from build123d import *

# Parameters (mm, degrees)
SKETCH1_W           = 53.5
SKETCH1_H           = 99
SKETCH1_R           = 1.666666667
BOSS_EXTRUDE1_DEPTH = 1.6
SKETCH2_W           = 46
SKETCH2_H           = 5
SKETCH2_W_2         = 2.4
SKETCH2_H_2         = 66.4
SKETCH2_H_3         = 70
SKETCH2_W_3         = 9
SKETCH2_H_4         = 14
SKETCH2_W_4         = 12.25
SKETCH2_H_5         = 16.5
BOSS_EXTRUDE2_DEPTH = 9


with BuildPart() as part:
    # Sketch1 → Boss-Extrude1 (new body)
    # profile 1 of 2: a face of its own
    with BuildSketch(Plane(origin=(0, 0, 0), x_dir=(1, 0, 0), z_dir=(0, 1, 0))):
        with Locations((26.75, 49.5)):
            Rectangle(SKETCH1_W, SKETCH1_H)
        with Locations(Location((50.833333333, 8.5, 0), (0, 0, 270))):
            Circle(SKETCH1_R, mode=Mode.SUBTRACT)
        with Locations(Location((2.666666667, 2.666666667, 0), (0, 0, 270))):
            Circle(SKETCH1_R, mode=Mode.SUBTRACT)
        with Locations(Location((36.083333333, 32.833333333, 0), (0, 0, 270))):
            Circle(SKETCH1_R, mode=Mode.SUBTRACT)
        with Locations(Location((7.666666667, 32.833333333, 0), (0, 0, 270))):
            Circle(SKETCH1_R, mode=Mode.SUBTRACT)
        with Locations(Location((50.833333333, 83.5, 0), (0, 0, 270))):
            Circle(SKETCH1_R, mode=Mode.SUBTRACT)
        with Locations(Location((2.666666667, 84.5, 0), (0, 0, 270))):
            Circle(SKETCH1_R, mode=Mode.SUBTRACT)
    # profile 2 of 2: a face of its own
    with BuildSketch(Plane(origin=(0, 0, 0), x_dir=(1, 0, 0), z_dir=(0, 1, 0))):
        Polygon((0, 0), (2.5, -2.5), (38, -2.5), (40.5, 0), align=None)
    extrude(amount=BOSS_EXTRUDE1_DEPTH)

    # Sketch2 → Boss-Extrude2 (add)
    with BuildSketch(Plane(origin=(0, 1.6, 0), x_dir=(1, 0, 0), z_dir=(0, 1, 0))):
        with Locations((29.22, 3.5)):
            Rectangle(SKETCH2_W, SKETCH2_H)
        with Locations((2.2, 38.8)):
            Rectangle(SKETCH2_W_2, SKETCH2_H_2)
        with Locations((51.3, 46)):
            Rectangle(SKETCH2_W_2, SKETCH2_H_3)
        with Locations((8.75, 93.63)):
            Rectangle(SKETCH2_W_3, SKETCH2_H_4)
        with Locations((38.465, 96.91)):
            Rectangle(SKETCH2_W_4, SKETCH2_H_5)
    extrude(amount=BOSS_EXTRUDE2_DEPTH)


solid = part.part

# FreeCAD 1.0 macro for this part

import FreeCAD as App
import Part
import Sketcher
from FreeCAD import Vector

doc = App.newDocument("Part")
params = doc.addObject("Spreadsheet::Sheet", "Params")
for row, (alias, value) in enumerate([
    ("sketch1_width", "13 mm"),
    ("sketch1_height", "99 mm"),
    ("sketch1_width2", "35.5 mm"),
    ("sketch1_width3", "53.5 mm"),
    ("pad1_length", "1.6 mm"),
    ("sketch2_width", "46 mm"),
    ("sketch2_width2", "9 mm"),
    ("sketch2_height", "5 mm"),
    ("sketch2_height2", "70 mm"),
    ("sketch2_height3", "14 mm"),
    ("pad2_length", "9 mm"),
], start=1):
    params.set(f"A{row}", alias)
    params.set(f"B{row}", "=" + value)
    params.setAlias(f"B{row}", alias)

body = doc.addObject("PartDesign::Body", "Body")

# Sketch on XZ plane
sketch1 = doc.addObject("Sketcher::SketchObject", "Sketch")
body.addObject(sketch1)
sketch1.AttachmentSupport = (doc.XZ_Plane, [""])
sketch1.MapMode = "FlatFace"
sketch1.addGeometry([
    Part.LineSegment(Vector(0, -99, 0), Vector(0, 0, 0)),  # 0
    Part.LineSegment(Vector(0, 0, 0), Vector(2.5, 2.5, 0)),  # 1
    Part.LineSegment(Vector(2.5, 2.5, 0), Vector(38, 2.5, 0)),  # 2
    Part.LineSegment(Vector(38, 2.5, 0), Vector(40.5, 0, 0)),  # 3
    Part.LineSegment(Vector(40.5, 0, 0), Vector(53.5, 0, 0)),  # 4
    Part.LineSegment(Vector(53.5, 0, 0), Vector(53.5, -99, 0)),  # 5
    Part.LineSegment(Vector(53.5, -99, 0), Vector(0, -99, 0)),  # 6
    Part.Circle(Vector(2.7, -2.7, 0), Vector(0, 0, 1), 1.7),  # 7
    Part.Circle(Vector(7.7, -32.8, 0), Vector(0, 0, 1), 1.7),  # 8
    Part.Circle(Vector(50.8, -8.5, 0), Vector(0, 0, 1), 1.7),  # 9
    Part.Circle(Vector(36.1, -32.8, 0), Vector(0, 0, 1), 1.7),  # 10
    Part.Circle(Vector(2.7, -84.5, 0), Vector(0, 0, 1), 1.7),  # 11
    Part.Circle(Vector(50.8, -83.5, 0), Vector(0, 0, 1), 1.7),  # 12
], False)
sketch1.addConstraint([
    Sketcher.Constraint("Coincident", 0, 2, 1, 1),
    Sketcher.Constraint("Coincident", 1, 2, 2, 1),
    Sketcher.Constraint("Coincident", 2, 2, 3, 1),
    Sketcher.Constraint("Coincident", 3, 2, 4, 1),
    Sketcher.Constraint("Coincident", 4, 2, 5, 1),
    Sketcher.Constraint("Coincident", 5, 2, 6, 1),
    Sketcher.Constraint("Coincident", 6, 2, 0, 1),
    Sketcher.Constraint("Vertical", 0),
    Sketcher.Constraint("Horizontal", 2),
    Sketcher.Constraint("Horizontal", 4),
    Sketcher.Constraint("Vertical", 5),
    Sketcher.Constraint("Horizontal", 6),
    Sketcher.Constraint("Coincident", 0, 2, -1, 1),
    Sketcher.Constraint("Equal", 7, 8),
    Sketcher.Constraint("Equal", 8, 9),
    Sketcher.Constraint("Equal", 9, 10),
    Sketcher.Constraint("Equal", 10, 11),
    Sketcher.Constraint("Equal", 11, 12),
    Sketcher.Constraint("PointOnObject", 3, 2, -1),
    Sketcher.Constraint("Perpendicular", 1, 3),
    Sketcher.Constraint("Horizontal", 8, 3, 10, 3),
    Sketcher.Constraint("Vertical", 7, 3, 11, 3),
    Sketcher.Constraint("Vertical", 9, 3, 12, 3),
    Sketcher.Constraint("Equal", 1, 3),
    Sketcher.Constraint("DistanceX", 4, 1, 4, 2, 13.0),
    Sketcher.Constraint("DistanceY", 0, 1, 0, 2, 99.0),
    Sketcher.Constraint("DistanceX", 2, 1, 2, 2, 35.5),
    Sketcher.Constraint("DistanceX", 6, 2, 6, 1, 53.5),
    Sketcher.Constraint("DistanceX", 7, 3, 8, 3, 5.0),
    Sketcher.Constraint("DistanceY", 11, 3, 9, 3, 76.0),
    Sketcher.Constraint("DistanceY", 11, 3, 12, 3, 1.0),
    Sketcher.Constraint("DistanceY", 9, 3, 1, 2, 11.0),
    Sketcher.Constraint("DistanceX", 10, 3, 9, 3, 14.75),
    Sketcher.Constraint("Diameter", 7, 3.333333),
    Sketcher.Constraint("DistanceX", -1, 1, 7, 3, 2.666667),
    Sketcher.Constraint("DistanceY", 7, 3, -1, 1, 2.666667),
    Sketcher.Constraint("DistanceY", 8, 3, -1, 1, 32.833333),
    Sketcher.Constraint("DistanceX", -1, 1, 9, 3, 50.833333),
])
sketch1.setExpression("Constraints[24]", "Params.sketch1_width")
sketch1.setExpression("Constraints[25]", "Params.sketch1_height")
sketch1.setExpression("Constraints[26]", "Params.sketch1_width2")
sketch1.setExpression("Constraints[27]", "Params.sketch1_width3")
pad1 = doc.addObject("PartDesign::Pad", "Pad")
body.addObject(pad1)
pad1.Profile = sketch1
pad1.setExpression("Length", "Params.pad1_length")
pad1.Reversed = True

# Sketch on XZ plane
sketch2 = doc.addObject("Sketcher::SketchObject", "Sketch001")
body.addObject(sketch2)
sketch2.AttachmentSupport = (doc.XZ_Plane, [""])
sketch2.MapMode = "FlatFace"
sketch2.AttachmentOffset = App.Placement(Vector(0, 0, -1.6), App.Rotation())
sketch2.addGeometry([
    Part.LineSegment(Vector(6.2, -6, 0), Vector(6.2, -1, 0)),  # 0
    Part.LineSegment(Vector(6.2, -1, 0), Vector(52.2, -1, 0)),  # 1
    Part.LineSegment(Vector(52.2, -1, 0), Vector(52.2, -6, 0)),  # 2
    Part.LineSegment(Vector(52.2, -6, 0), Vector(6.2, -6, 0)),  # 3
    Part.LineSegment(Vector(1, -72, 0), Vector(1, -5.6, 0)),  # 4
    Part.LineSegment(Vector(1, -5.6, 0), Vector(3.4, -5.6, 0)),  # 5
    Part.LineSegment(Vector(3.4, -5.6, 0), Vector(3.4, -72, 0)),  # 6
    Part.LineSegment(Vector(3.4, -72, 0), Vector(1, -72, 0)),  # 7
    Part.LineSegment(Vector(50.1, -81, 0), Vector(50.1, -11, 0)),  # 8
    Part.LineSegment(Vector(50.1, -11, 0), Vector(52.5, -11, 0)),  # 9
    Part.LineSegment(Vector(52.5, -11, 0), Vector(52.5, -81, 0)),  # 10
    Part.LineSegment(Vector(52.5, -81, 0), Vector(50.1, -81, 0)),  # 11
    Part.LineSegment(Vector(4.2, -100.6, 0), Vector(4.2, -86.6, 0)),  # 12
    Part.LineSegment(Vector(4.2, -86.6, 0), Vector(13.2, -86.6, 0)),  # 13
    Part.LineSegment(Vector(13.2, -86.6, 0), Vector(13.2, -100.6, 0)),  # 14
    Part.LineSegment(Vector(13.2, -100.6, 0), Vector(4.2, -100.6, 0)),  # 15
    Part.LineSegment(Vector(32.3, -105.2, 0), Vector(32.3, -88.7, 0)),  # 16
    Part.LineSegment(Vector(32.3, -88.7, 0), Vector(44.6, -88.7, 0)),  # 17
    Part.LineSegment(Vector(44.6, -88.7, 0), Vector(44.6, -105.2, 0)),  # 18
    Part.LineSegment(Vector(44.6, -105.2, 0), Vector(32.3, -105.2, 0)),  # 19
], False)
sketch2.addConstraint([
    Sketcher.Constraint("Coincident", 0, 2, 1, 1),
    Sketcher.Constraint("Coincident", 1, 2, 2, 1),
    Sketcher.Constraint("Coincident", 2, 2, 3, 1),
    Sketcher.Constraint("Coincident", 3, 2, 0, 1),
    Sketcher.Constraint("Coincident", 4, 2, 5, 1),
    Sketcher.Constraint("Coincident", 5, 2, 6, 1),
    Sketcher.Constraint("Coincident", 6, 2, 7, 1),
    Sketcher.Constraint("Coincident", 7, 2, 4, 1),
    Sketcher.Constraint("Coincident", 8, 2, 9, 1),
    Sketcher.Constraint("Coincident", 9, 2, 10, 1),
    Sketcher.Constraint("Coincident", 10, 2, 11, 1),
    Sketcher.Constraint("Coincident", 11, 2, 8, 1),
    Sketcher.Constraint("Coincident", 12, 2, 13, 1),
    Sketcher.Constraint("Coincident", 13, 2, 14, 1),
    Sketcher.Constraint("Coincident", 14, 2, 15, 1),
    Sketcher.Constraint("Coincident", 15, 2, 12, 1),
    Sketcher.Constraint("Coincident", 16, 2, 17, 1),
    Sketcher.Constraint("Coincident", 17, 2, 18, 1),
    Sketcher.Constraint("Coincident", 18, 2, 19, 1),
    Sketcher.Constraint("Coincident", 19, 2, 16, 1),
    Sketcher.Constraint("Vertical", 0),
    Sketcher.Constraint("Horizontal", 1),
    Sketcher.Constraint("Vertical", 2),
    Sketcher.Constraint("Horizontal", 3),
    Sketcher.Constraint("Vertical", 4),
    Sketcher.Constraint("Horizontal", 5),
    Sketcher.Constraint("Vertical", 6),
    Sketcher.Constraint("Horizontal", 7),
    Sketcher.Constraint("Vertical", 8),
    Sketcher.Constraint("Horizontal", 9),
    Sketcher.Constraint("Vertical", 10),
    Sketcher.Constraint("Horizontal", 11),
    Sketcher.Constraint("Vertical", 12),
    Sketcher.Constraint("Horizontal", 13),
    Sketcher.Constraint("Vertical", 14),
    Sketcher.Constraint("Horizontal", 15),
    Sketcher.Constraint("Vertical", 16),
    Sketcher.Constraint("Horizontal", 17),
    Sketcher.Constraint("Vertical", 18),
    Sketcher.Constraint("Horizontal", 19),
    Sketcher.Constraint("Equal", 7, 9),
    Sketcher.Constraint("DistanceX", 1, 1, 1, 2, 46.0),
    Sketcher.Constraint("DistanceX", 13, 1, 13, 2, 9.0),
    Sketcher.Constraint("DistanceY", 0, 1, 0, 2, 5.0),
    Sketcher.Constraint("DistanceY", 8, 1, 8, 2, 70.0),
    Sketcher.Constraint("DistanceY", 12, 1, 12, 2, 14.0),
    Sketcher.Constraint("DistanceX", 5, 1, 5, 2, 2.4),
    Sketcher.Constraint("DistanceY", 4, 1, 4, 2, 66.4),
    Sketcher.Constraint("DistanceY", 16, 1, 16, 2, 16.5),
    Sketcher.Constraint("DistanceY", 0, 2, -1, 1, 1.0),
    Sketcher.Constraint("DistanceX", -1, 1, 4, 2, 1.0),
    Sketcher.Constraint("DistanceY", 6, 2, -1, 1, 72.0),
    Sketcher.Constraint("DistanceY", 8, 2, -1, 1, 11.0),
    Sketcher.Constraint("DistanceX", 17, 1, 17, 2, 12.25),
    Sketcher.Constraint("DistanceX", -1, 1, 8, 2, 50.1),
    Sketcher.Constraint("DistanceX", -1, 1, 0, 2, 6.22),
    Sketcher.Constraint("DistanceX", -1, 1, 12, 2, 4.25),
    Sketcher.Constraint("DistanceY", 12, 2, -1, 1, 86.63),
    Sketcher.Constraint("DistanceX", -1, 1, 16, 2, 32.34),
    Sketcher.Constraint("DistanceY", 16, 2, -1, 1, 88.66),
])
sketch2.setExpression("Constraints[41]", "Params.sketch2_width")
sketch2.setExpression("Constraints[42]", "Params.sketch2_width2")
sketch2.setExpression("Constraints[43]", "Params.sketch2_height")
sketch2.setExpression("Constraints[44]", "Params.sketch2_height2")
sketch2.setExpression("Constraints[45]", "Params.sketch2_height3")
pad2 = doc.addObject("PartDesign::Pad", "Pad001")
body.addObject(pad2)
pad2.Profile = sketch2
pad2.setExpression("Length", "Params.pad2_length")
pad2.Reversed = True

doc.recompute()
